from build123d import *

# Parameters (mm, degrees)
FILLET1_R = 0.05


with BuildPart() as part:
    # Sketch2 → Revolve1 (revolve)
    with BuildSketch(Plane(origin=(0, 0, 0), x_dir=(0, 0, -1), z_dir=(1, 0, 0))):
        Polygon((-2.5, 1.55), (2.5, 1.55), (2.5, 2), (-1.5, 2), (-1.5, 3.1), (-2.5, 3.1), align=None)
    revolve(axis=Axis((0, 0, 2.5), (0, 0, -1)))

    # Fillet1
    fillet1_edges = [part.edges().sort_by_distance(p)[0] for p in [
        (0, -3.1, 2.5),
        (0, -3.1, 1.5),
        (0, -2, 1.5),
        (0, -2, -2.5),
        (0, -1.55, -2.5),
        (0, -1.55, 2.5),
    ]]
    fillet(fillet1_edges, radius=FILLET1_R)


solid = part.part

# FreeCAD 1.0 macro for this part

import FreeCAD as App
import Part
import Sketcher

V = App.Vector
Q = App.Units.Quantity


def edges_at(feature, points):
    """Names of the edges that pass closest to the given points."""
    edges = feature.Shape.Edges
    near = lambda p: min(range(len(edges)), key=lambda i: edges[i].distToShape(Part.Vertex(*p))[0])
    return sorted({f"Edge{near(p) + 1}" for p in points})


def add_polygon(sketch, points):
    """Adds a closed chain of lines whose ends are joined by coincident constraints."""
    first, n = sketch.GeometryCount, len(points)
    for a, b in zip(points, points[1:] + points[:1]):
        sketch.addGeometry(Part.LineSegment(App.Vector(*a, 0), App.Vector(*b, 0)), False)
    for i in range(n):
        sketch.addConstraint(Sketcher.Constraint("Coincident", first + i, 2, first + (i + 1) % n, 1))

doc = App.newDocument("Part")
params = doc.addObject("Spreadsheet::Sheet", "Params")
for row, (alias, value) in enumerate([
    ("sketch1_height", "5 mm"),
    ("sketch1_height2", "4 mm"),
    ("sketch1_width", "1.1 mm"),
    ("sketch1_width2", "0.45 mm"),
    ("revolution_angle", "360 deg"),
    ("fillet_radius", "0.05 mm"),
], start=1):
    params.set(f"A{row}", alias)
    params.set(f"B{row}", "=" + value)
    params.setAlias(f"B{row}", alias)

body = doc.addObject("PartDesign::Body", "Body")

# Sketch on YZ plane
sketch1 = body.newObject("Sketcher::SketchObject", "Sketch")
sketch1.AttachmentSupport = (doc.getObject("YZ_Plane"), [""])
sketch1.MapMode = "FlatFace"
add_polygon(sketch1, [(1.55, 2.5), (1.55, -2.5), (2, -2.5), (2, 1.5), (3.1, 1.5), (3.1, 2.5)])  # lines 0-5
sketch1.addConstraint([
    Sketcher.Constraint("Vertical", 0),
    Sketcher.Constraint("Horizontal", 1),
    Sketcher.Constraint("Vertical", 2),
    Sketcher.Constraint("Horizontal", 3),
    Sketcher.Constraint("Vertical", 4),
    Sketcher.Constraint("Horizontal", 5),
    Sketcher.Constraint("DistanceY", 0, 2, 0, 1, Q("5 mm")),
    Sketcher.Constraint("DistanceY", 2, 1, 2, 2, Q("4 mm")),
    Sketcher.Constraint("DistanceX", 3, 1, 3, 2, Q("1.1 mm")),
    Sketcher.Constraint("DistanceX", -1, 1, 1, 2, Q("2 mm")),
    Sketcher.Constraint("DistanceX", 1, 1, 1, 2, Q("0.45 mm")),
    Sketcher.Constraint("DistanceY", 0, 2, -1, 1, Q("2.5 mm")),
])
sketch1.setExpression("Constraints[12]", "Params.sketch1_height")
sketch1.setExpression("Constraints[13]", "Params.sketch1_height2")
sketch1.setExpression("Constraints[14]", "Params.sketch1_width")
sketch1.setExpression("Constraints[16]", "Params.sketch1_width2")
revolution = body.newObject("PartDesign::Revolution", "Revolution")
revolution.Profile = sketch1
revolution.ReferenceAxis = (sketch1, ["V_Axis"])
revolution.setExpression("Angle", "Params.revolution_angle")
doc.recompute()

fillet = body.newObject("PartDesign::Fillet", "Fillet")
fillet.Base = (revolution, edges_at(revolution, [
    (0, -3.1, 2.5),
    (0, -3.1, 1.5),
    (0, -2, 1.5),
    (0, -2, -2.5),
    (0, -1.55, -2.5),
    (0, -1.55, 2.5),
]))
fillet.setExpression("Radius", "Params.fillet_radius")

doc.recompute()
